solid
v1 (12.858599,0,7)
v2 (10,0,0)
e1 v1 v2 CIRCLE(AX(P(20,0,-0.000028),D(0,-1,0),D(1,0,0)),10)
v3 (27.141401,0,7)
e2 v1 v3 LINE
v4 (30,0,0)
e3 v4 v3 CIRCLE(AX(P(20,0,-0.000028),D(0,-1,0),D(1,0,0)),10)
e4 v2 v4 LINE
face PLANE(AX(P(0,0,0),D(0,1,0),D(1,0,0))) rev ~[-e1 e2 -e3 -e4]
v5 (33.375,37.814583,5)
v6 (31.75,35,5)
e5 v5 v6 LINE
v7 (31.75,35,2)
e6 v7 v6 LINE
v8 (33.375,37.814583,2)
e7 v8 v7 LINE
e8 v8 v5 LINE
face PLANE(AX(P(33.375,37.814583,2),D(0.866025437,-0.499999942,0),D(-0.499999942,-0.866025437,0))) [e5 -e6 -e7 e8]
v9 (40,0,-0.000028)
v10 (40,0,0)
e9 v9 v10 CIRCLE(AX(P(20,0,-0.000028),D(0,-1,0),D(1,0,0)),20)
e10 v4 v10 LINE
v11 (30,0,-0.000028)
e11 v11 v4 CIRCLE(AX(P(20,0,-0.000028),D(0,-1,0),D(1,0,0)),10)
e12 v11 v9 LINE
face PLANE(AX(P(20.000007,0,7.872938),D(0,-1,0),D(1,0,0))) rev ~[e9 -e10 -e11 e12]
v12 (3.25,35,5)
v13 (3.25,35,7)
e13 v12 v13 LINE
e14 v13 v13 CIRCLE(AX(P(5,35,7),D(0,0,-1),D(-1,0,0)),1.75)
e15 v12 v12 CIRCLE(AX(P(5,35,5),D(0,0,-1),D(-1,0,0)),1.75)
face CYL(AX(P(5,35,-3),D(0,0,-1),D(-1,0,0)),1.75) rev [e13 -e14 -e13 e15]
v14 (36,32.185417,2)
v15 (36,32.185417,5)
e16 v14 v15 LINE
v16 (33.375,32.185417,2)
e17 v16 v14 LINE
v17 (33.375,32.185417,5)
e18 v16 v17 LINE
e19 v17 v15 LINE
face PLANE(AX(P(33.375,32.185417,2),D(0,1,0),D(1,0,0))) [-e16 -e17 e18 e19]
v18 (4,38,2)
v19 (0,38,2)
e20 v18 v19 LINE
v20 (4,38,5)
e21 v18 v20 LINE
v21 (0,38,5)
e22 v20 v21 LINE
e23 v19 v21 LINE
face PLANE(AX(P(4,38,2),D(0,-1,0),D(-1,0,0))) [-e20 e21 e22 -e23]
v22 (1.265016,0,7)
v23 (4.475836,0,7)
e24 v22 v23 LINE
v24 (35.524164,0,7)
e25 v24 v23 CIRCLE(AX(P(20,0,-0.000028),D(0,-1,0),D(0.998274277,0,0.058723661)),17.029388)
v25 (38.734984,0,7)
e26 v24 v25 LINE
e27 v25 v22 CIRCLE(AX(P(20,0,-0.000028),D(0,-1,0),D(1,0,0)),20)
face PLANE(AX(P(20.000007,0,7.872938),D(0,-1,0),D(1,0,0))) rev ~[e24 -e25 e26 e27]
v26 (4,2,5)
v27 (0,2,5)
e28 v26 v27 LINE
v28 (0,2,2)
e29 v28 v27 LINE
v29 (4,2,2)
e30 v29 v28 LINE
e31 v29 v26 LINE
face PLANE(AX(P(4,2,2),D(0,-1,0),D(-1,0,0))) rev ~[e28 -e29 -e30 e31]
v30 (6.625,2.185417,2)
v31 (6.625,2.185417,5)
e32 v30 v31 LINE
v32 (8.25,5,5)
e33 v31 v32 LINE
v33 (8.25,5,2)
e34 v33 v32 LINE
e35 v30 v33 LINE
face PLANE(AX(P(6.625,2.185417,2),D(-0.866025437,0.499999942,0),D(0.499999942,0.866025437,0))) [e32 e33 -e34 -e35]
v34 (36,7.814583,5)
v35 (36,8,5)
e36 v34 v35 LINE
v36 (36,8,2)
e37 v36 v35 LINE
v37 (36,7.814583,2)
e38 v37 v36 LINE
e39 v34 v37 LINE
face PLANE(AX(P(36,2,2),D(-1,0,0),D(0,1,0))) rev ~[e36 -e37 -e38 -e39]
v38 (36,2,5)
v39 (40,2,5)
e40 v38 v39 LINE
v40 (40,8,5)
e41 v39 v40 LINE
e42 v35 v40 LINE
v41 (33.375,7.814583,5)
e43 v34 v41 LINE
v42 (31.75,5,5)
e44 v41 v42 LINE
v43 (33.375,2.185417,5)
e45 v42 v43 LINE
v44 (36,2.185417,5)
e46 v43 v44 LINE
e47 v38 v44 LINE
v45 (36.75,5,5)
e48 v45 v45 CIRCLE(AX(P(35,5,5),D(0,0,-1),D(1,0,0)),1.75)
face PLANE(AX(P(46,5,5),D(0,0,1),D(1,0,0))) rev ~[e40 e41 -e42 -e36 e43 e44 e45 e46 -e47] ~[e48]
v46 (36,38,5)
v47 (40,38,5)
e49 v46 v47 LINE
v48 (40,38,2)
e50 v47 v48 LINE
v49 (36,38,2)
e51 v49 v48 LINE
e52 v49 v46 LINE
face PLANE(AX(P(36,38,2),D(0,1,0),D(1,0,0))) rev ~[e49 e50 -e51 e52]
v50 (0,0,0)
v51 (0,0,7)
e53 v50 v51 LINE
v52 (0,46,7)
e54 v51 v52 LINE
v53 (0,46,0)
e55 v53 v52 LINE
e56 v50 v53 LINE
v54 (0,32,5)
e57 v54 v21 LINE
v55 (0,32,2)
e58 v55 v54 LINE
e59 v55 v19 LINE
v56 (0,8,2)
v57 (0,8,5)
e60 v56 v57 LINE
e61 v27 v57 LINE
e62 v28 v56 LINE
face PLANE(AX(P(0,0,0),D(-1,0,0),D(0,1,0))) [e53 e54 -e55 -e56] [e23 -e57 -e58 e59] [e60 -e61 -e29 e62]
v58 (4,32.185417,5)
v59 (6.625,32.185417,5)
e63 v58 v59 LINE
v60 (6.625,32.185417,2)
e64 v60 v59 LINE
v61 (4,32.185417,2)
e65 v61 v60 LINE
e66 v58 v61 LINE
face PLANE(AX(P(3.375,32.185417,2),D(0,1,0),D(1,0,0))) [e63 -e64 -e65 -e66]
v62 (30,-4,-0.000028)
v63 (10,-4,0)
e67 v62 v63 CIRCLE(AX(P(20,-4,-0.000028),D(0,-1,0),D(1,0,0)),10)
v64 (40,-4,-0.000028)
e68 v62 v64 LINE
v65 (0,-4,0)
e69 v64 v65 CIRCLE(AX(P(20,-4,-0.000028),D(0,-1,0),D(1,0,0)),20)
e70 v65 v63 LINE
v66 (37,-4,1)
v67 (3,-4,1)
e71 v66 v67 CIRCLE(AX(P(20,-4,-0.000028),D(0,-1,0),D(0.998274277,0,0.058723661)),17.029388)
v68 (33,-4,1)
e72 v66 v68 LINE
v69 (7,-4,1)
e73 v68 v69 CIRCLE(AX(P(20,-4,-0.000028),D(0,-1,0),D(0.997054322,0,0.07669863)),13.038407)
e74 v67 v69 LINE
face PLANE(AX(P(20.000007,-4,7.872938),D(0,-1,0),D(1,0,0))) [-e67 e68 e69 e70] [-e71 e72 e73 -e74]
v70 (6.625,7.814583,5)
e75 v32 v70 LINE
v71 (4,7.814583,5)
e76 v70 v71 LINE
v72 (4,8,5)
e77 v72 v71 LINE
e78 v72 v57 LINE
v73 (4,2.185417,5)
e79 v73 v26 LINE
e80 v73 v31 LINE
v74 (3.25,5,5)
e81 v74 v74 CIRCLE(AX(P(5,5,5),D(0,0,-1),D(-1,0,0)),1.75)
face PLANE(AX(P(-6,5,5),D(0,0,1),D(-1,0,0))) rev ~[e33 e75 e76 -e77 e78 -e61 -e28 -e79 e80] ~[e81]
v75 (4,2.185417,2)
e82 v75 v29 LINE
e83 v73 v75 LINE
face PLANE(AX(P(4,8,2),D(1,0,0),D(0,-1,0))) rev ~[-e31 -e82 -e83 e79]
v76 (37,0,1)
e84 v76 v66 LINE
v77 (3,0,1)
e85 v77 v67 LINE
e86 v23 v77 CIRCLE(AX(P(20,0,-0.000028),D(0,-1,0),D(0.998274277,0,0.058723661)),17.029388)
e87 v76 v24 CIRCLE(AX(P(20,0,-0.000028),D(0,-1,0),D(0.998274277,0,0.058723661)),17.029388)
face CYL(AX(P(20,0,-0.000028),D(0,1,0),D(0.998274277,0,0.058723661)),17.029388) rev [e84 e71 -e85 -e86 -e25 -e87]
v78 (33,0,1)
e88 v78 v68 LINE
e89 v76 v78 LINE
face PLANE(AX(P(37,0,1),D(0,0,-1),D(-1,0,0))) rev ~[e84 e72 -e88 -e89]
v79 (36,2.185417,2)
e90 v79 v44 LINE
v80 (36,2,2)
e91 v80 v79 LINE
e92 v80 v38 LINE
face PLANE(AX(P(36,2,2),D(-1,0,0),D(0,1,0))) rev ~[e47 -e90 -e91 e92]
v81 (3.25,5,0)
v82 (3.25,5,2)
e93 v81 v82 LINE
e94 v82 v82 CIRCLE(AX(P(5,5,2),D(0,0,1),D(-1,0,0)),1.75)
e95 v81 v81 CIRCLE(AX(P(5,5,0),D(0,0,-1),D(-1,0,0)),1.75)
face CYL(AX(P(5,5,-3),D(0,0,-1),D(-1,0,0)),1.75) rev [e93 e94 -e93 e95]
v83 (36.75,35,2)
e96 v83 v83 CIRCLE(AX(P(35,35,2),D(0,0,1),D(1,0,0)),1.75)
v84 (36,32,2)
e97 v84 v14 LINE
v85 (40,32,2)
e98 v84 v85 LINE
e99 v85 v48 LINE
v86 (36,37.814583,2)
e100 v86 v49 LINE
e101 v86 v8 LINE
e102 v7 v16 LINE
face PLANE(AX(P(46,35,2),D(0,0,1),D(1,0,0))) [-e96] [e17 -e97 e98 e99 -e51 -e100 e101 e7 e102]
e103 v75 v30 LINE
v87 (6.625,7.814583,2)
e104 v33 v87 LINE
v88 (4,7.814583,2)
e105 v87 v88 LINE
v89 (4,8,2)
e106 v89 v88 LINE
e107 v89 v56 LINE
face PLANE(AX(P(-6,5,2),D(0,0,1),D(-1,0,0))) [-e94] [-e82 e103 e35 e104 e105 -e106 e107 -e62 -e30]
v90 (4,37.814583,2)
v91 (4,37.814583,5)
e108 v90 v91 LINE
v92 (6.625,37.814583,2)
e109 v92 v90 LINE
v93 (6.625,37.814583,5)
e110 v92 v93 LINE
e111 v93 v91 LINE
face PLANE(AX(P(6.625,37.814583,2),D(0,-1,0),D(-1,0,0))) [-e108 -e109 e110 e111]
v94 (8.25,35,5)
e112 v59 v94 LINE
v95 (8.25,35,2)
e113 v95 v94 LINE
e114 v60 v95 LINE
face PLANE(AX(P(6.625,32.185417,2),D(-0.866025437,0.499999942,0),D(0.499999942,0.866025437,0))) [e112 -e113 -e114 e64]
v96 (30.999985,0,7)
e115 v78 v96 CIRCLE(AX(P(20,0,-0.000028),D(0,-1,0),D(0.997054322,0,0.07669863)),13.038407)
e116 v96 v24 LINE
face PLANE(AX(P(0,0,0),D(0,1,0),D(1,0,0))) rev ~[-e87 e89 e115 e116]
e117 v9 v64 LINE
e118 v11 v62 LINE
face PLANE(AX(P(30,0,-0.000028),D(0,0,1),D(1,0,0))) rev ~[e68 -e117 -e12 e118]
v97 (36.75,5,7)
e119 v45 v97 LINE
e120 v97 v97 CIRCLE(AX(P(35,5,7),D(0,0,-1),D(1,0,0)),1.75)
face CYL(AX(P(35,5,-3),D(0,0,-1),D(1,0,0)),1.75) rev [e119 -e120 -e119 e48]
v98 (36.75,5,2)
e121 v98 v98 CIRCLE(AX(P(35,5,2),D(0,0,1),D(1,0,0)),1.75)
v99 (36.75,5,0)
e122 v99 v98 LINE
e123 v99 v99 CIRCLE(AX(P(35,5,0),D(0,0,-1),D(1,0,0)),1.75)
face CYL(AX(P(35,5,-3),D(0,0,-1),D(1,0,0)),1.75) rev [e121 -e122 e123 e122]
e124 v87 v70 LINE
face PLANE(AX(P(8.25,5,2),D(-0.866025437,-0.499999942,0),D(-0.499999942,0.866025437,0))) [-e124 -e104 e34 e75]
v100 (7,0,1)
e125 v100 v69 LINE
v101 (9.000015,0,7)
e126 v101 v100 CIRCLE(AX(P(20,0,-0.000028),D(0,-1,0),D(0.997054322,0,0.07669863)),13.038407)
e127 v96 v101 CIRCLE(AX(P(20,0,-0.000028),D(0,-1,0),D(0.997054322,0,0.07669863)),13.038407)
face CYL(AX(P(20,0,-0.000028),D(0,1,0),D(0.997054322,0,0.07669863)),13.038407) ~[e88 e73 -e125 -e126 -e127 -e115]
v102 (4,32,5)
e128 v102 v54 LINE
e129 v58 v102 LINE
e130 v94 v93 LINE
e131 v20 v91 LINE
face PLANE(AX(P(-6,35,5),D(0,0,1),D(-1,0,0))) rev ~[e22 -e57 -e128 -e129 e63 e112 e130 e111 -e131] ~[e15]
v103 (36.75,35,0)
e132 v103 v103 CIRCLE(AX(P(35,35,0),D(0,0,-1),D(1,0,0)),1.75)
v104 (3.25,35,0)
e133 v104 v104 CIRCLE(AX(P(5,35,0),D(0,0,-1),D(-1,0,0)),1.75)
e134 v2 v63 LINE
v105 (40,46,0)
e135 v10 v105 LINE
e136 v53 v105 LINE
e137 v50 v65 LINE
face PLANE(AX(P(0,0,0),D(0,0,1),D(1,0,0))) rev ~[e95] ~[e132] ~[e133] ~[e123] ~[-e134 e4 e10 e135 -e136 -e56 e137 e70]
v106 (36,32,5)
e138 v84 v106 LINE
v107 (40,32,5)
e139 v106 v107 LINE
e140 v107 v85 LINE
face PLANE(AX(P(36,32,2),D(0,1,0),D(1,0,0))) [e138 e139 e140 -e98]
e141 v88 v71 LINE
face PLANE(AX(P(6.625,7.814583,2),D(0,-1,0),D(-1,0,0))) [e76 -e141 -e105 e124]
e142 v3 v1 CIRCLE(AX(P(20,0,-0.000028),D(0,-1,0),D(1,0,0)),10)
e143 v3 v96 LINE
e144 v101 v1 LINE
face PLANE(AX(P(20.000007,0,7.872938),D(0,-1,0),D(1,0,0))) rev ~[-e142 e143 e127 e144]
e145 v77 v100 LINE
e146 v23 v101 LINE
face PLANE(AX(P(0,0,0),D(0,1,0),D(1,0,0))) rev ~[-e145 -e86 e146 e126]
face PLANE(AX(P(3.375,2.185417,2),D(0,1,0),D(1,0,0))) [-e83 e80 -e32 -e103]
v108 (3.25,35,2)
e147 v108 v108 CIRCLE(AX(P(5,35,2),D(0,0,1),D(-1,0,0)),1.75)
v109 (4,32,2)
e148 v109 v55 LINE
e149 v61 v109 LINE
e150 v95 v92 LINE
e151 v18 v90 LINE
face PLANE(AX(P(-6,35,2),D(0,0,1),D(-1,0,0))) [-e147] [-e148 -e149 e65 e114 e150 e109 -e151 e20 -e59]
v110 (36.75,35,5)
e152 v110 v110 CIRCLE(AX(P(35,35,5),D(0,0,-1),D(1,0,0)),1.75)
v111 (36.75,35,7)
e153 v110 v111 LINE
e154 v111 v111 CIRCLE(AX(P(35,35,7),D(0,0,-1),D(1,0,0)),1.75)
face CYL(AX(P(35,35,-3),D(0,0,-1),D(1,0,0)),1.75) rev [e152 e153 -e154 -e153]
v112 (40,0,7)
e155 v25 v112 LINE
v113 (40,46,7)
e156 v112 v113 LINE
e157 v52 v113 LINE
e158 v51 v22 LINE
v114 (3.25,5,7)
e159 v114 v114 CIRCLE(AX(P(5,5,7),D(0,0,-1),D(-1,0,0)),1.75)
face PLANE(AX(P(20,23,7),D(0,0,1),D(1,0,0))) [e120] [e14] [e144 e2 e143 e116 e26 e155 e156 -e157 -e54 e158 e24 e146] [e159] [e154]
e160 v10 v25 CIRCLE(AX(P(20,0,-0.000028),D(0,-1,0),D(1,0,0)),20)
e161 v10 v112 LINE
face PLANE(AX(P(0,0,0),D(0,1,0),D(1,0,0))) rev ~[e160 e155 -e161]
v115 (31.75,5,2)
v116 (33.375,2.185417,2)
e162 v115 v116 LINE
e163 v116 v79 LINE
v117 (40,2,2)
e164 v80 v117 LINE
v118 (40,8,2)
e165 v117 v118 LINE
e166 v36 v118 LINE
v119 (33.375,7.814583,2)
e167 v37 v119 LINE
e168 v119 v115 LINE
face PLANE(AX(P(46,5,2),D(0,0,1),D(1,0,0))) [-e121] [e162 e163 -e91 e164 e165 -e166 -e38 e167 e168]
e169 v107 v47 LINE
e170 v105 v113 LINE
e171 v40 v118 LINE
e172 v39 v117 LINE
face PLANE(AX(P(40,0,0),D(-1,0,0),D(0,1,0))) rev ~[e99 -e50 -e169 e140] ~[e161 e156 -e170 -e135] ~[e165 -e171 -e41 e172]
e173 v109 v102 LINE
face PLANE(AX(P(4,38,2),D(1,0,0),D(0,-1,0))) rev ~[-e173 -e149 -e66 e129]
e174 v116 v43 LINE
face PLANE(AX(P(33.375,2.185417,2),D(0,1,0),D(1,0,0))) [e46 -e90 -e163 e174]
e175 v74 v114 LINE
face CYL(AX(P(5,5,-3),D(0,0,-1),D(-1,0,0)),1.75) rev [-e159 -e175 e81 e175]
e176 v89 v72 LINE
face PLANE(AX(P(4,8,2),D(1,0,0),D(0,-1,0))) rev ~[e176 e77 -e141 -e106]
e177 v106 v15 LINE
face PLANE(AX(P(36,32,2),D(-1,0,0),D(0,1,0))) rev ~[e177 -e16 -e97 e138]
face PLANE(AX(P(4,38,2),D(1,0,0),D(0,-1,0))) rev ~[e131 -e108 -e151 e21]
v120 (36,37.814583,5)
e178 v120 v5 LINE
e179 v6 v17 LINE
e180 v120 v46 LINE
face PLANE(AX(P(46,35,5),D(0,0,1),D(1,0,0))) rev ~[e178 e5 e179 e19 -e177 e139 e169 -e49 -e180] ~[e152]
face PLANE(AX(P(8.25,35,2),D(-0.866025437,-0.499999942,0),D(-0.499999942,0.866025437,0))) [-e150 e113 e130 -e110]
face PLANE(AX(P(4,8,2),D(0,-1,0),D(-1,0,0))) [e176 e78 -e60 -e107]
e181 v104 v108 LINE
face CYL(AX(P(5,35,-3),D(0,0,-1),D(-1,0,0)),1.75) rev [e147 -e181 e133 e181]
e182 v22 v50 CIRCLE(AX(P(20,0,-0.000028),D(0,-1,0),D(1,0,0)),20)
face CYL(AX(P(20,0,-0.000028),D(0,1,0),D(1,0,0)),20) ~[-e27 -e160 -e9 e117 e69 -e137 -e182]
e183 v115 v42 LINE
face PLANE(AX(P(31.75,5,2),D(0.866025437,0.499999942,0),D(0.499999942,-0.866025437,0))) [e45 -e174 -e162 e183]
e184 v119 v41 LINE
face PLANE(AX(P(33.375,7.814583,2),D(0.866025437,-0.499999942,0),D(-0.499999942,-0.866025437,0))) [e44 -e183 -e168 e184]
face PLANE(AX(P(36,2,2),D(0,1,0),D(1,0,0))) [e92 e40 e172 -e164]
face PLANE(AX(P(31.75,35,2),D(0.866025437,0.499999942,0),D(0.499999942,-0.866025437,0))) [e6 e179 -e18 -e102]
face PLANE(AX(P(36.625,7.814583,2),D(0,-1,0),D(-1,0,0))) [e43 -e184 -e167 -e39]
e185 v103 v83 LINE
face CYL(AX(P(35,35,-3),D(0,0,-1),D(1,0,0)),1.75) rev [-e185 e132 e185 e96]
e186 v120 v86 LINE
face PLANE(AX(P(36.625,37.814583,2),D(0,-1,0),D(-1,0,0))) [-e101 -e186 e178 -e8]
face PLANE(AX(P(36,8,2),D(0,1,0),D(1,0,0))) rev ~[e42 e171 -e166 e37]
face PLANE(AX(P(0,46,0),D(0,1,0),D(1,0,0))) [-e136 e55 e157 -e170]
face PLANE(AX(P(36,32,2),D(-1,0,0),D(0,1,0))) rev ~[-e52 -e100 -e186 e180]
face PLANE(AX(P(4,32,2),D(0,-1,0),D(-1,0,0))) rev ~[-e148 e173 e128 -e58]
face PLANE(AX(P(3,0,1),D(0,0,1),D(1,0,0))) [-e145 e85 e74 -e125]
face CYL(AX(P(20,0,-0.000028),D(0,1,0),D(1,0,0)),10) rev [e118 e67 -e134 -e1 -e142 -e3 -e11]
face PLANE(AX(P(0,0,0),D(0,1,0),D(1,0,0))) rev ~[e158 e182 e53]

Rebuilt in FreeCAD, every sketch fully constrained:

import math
import FreeCAD as App
import Part
import Sketcher
Q = App.Units.Quantity

doc = App.newDocument("Part")
body = doc.addObject("PartDesign::Body", "Body")

# Sketch on XY plane
sketch1 = body.newObject("Sketcher::SketchObject", "Sketch")
sketch1.AttachmentSupport = (doc.getObject("XY_Plane"), [""])
sketch1.MapMode = "FlatFace"
sketch1.AttachmentOffset = App.Placement(App.Vector(0, 0, -5), App.Rotation())
sketch1.addGeometry(Part.Circle(App.Vector(0, 0, 0), App.Vector(0, 0, 1), 1.8), False)
sketch1.addConstraint(Sketcher.Constraint("Coincident", 0, 3, -1, 1))
sketch1.addConstraint(Sketcher.Constraint("Diameter", 0, 3.5))
pad1 = body.newObject("PartDesign::Pad", "Pad")
pad1.Profile = sketch1
pad1.Length = 30
body2 = doc.addObject("PartDesign::Body", "Body001")

# Sketch on XY plane
sketch2 = body2.newObject("Sketcher::SketchObject", "Sketch001")
sketch2.AttachmentSupport = (doc.getObject("XY_Plane001"), [""])
sketch2.MapMode = "FlatFace"
sketch2.addGeometry(Part.LineSegment(App.Vector(1, 3, 0), App.Vector(1, -3, 0)), False)
sketch2.addGeometry(Part.LineSegment(App.Vector(1, -3, 0), App.Vector(21, -3, 0)), False)
sketch2.addGeometry(Part.LineSegment(App.Vector(21, -3, 0), App.Vector(21, 3, 0)), False)
sketch2.addGeometry(Part.LineSegment(App.Vector(21, 3, 0), App.Vector(1, 3, 0)), False)
sketch2.addConstraint(Sketcher.Constraint("Coincident", 0, 2, 1, 1))
sketch2.addConstraint(Sketcher.Constraint("Coincident", 1, 2, 2, 1))
sketch2.addConstraint(Sketcher.Constraint("Coincident", 2, 2, 3, 1))
sketch2.addConstraint(Sketcher.Constraint("Coincident", 3, 2, 0, 1))
sketch2.addConstraint(Sketcher.Constraint("Vertical", 0))
sketch2.addConstraint(Sketcher.Constraint("Horizontal", 1))
sketch2.addConstraint(Sketcher.Constraint("Vertical", 2))
sketch2.addConstraint(Sketcher.Constraint("Horizontal", 3))
sketch2.addConstraint(Sketcher.Constraint("DistanceX", 1, 1, 1, 2, 20.0))
sketch2.addConstraint(Sketcher.Constraint("DistanceY", 0, 2, 0, 1, 6.0))
sketch2.addConstraint(Sketcher.Constraint("DistanceX", -1, 1, 0, 2, 1.0))
sketch2.addConstraint(Sketcher.Constraint("DistanceY", 0, 2, -1, 1, 3.0))
pad2 = body2.newObject("PartDesign::Pad", "Pad001")
pad2.Profile = sketch2
pad2.Length = 3
body3 = doc.addObject("PartDesign::Body", "Body002")

# Sketch on XY plane
sketch3 = body3.newObject("Sketcher::SketchObject", "Sketch002")
sketch3.AttachmentSupport = (doc.getObject("XY_Plane002"), [""])
sketch3.MapMode = "FlatFace"
sketch3.addGeometry(Part.LineSegment(App.Vector(3.2, 0, 0), App.Vector(1.6, 2.8, 0)), False)
sketch3.addGeometry(Part.LineSegment(App.Vector(1.6, 2.8, 0), App.Vector(-1.6, 2.8, 0)), False)
sketch3.addGeometry(Part.LineSegment(App.Vector(-1.6, 2.8, 0), App.Vector(-3.2, 0, 0)), False)
sketch3.addGeometry(Part.LineSegment(App.Vector(-3.2, 0, 0), App.Vector(-1.6, -2.8, 0)), False)
sketch3.addGeometry(Part.LineSegment(App.Vector(-1.6, -2.8, 0), App.Vector(1.6, -2.8, 0)), False)
sketch3.addGeometry(Part.LineSegment(App.Vector(1.6, -2.8, 0), App.Vector(3.2, 0, 0)), False)
sketch3.addConstraint(Sketcher.Constraint("Coincident", 0, 2, 1, 1))
sketch3.addConstraint(Sketcher.Constraint("Coincident", 1, 2, 2, 1))
sketch3.addConstraint(Sketcher.Constraint("Coincident", 2, 2, 3, 1))
sketch3.addConstraint(Sketcher.Constraint("Coincident", 3, 2, 4, 1))
sketch3.addConstraint(Sketcher.Constraint("Coincident", 4, 2, 5, 1))
sketch3.addConstraint(Sketcher.Constraint("Coincident", 5, 2, 0, 1))
sketch3.addConstraint(Sketcher.Constraint("Horizontal", 1))
sketch3.addConstraint(Sketcher.Constraint("Horizontal", 4))
sketch3.addConstraint(Sketcher.Constraint("Symmetric", 0, 2, 3, 2, -1, 1))
sketch3.addConstraint(Sketcher.Constraint("Symmetric", 2, 2, 5, 2, -1, 1))
sketch3.addConstraint(Sketcher.Constraint("PointOnObject", 2, 2, -1))
sketch3.addConstraint(Sketcher.Constraint("Parallel", 2, 5))
sketch3.addConstraint(Sketcher.Constraint("Vertical", 1, 2, 3, 2))
sketch3.addConstraint(Sketcher.Constraint("Angle", 0, Q("119.999996 deg")))
sketch3.addConstraint(Sketcher.Constraint("DistanceX", 1, 2, 1, 1, 3.25))
sketch3.addConstraint(Sketcher.Constraint("DistanceX", 2, 2, 5, 2, 6.5))
pad3 = body3.newObject("PartDesign::Pad", "Pad002")
pad3.Profile = sketch3
pad3.Length = 3
doc.recompute()

boolean = body3.newObject("PartDesign::Boolean", "Boolean")
boolean.Type = "Fuse"
boolean.addObjects([body])
doc.recompute()

boolean2 = body3.newObject("PartDesign::Boolean", "Boolean001")
boolean2.Type = "Fuse"
boolean2.addObjects([body2])
body4 = doc.addObject("PartDesign::Body", "Body003")
doc.recompute()

body3.Placement = App.Placement(App.Vector(5, 35, 2), App.Rotation(App.Vector(0, 0, 1), 180))
boolean3 = body4.newObject("PartDesign::Boolean", "Boolean002")
boolean3.Type = "Fuse"
boolean3.addObjects([body3])
body5 = doc.addObject("PartDesign::Body", "Body004")

# Sketch on XY plane
sketch4 = body5.newObject("Sketcher::SketchObject", "Sketch003")
sketch4.AttachmentSupport = (doc.getObject("XY_Plane004"), [""])
sketch4.MapMode = "FlatFace"
sketch4.AttachmentOffset = App.Placement(App.Vector(0, 0, -5), App.Rotation())
sketch4.addGeometry(Part.Circle(App.Vector(0, 0, 0), App.Vector(0, 0, 1), 1.8), False)
sketch4.addConstraint(Sketcher.Constraint("Coincident", 0, 3, -1, 1))
sketch4.addConstraint(Sketcher.Constraint("Diameter", 0, 3.5))
pad4 = body5.newObject("PartDesign::Pad", "Pad003")
pad4.Profile = sketch4
pad4.Length = 30
body6 = doc.addObject("PartDesign::Body", "Body005")

# Sketch on XY plane
sketch5 = body6.newObject("Sketcher::SketchObject", "Sketch004")
sketch5.AttachmentSupport = (doc.getObject("XY_Plane005"), [""])
sketch5.MapMode = "FlatFace"
sketch5.addGeometry(Part.LineSegment(App.Vector(1, 3, 0), App.Vector(1, -3, 0)), False)
sketch5.addGeometry(Part.LineSegment(App.Vector(1, -3, 0), App.Vector(21, -3, 0)), False)
sketch5.addGeometry(Part.LineSegment(App.Vector(21, -3, 0), App.Vector(21, 3, 0)), False)
sketch5.addGeometry(Part.LineSegment(App.Vector(21, 3, 0), App.Vector(1, 3, 0)), False)
sketch5.addConstraint(Sketcher.Constraint("Coincident", 0, 2, 1, 1))
sketch5.addConstraint(Sketcher.Constraint("Coincident", 1, 2, 2, 1))
sketch5.addConstraint(Sketcher.Constraint("Coincident", 2, 2, 3, 1))
sketch5.addConstraint(Sketcher.Constraint("Coincident", 3, 2, 0, 1))
sketch5.addConstraint(Sketcher.Constraint("Vertical", 0))
sketch5.addConstraint(Sketcher.Constraint("Horizontal", 1))
sketch5.addConstraint(Sketcher.Constraint("Vertical", 2))
sketch5.addConstraint(Sketcher.Constraint("Horizontal", 3))
sketch5.addConstraint(Sketcher.Constraint("DistanceX", 1, 1, 1, 2, 20.0))
sketch5.addConstraint(Sketcher.Constraint("DistanceY", 0, 2, 0, 1, 6.0))
sketch5.addConstraint(Sketcher.Constraint("DistanceX", -1, 1, 0, 2, 1.0))
sketch5.addConstraint(Sketcher.Constraint("DistanceY", 0, 2, -1, 1, 3.0))
pad5 = body6.newObject("PartDesign::Pad", "Pad004")
pad5.Profile = sketch5
pad5.Length = 3
body7 = doc.addObject("PartDesign::Body", "Body006")

# Sketch on XY plane
sketch6 = body7.newObject("Sketcher::SketchObject", "Sketch005")
sketch6.AttachmentSupport = (doc.getObject("XY_Plane006"), [""])
sketch6.MapMode = "FlatFace"
sketch6.addGeometry(Part.LineSegment(App.Vector(3.2, 0, 0), App.Vector(1.6, 2.8, 0)), False)
sketch6.addGeometry(Part.LineSegment(App.Vector(1.6, 2.8, 0), App.Vector(-1.6, 2.8, 0)), False)
sketch6.addGeometry(Part.LineSegment(App.Vector(-1.6, 2.8, 0), App.Vector(-3.2, 0, 0)), False)
sketch6.addGeometry(Part.LineSegment(App.Vector(-3.2, 0, 0), App.Vector(-1.6, -2.8, 0)), False)
sketch6.addGeometry(Part.LineSegment(App.Vector(-1.6, -2.8, 0), App.Vector(1.6, -2.8, 0)), False)
sketch6.addGeometry(Part.LineSegment(App.Vector(1.6, -2.8, 0), App.Vector(3.2, 0, 0)), False)
sketch6.addConstraint(Sketcher.Constraint("Coincident", 0, 2, 1, 1))
sketch6.addConstraint(Sketcher.Constraint("Coincident", 1, 2, 2, 1))
sketch6.addConstraint(Sketcher.Constraint("Coincident", 2, 2, 3, 1))
sketch6.addConstraint(Sketcher.Constraint("Coincident", 3, 2, 4, 1))
sketch6.addConstraint(Sketcher.Constraint("Coincident", 4, 2, 5, 1))
sketch6.addConstraint(Sketcher.Constraint("Coincident", 5, 2, 0, 1))
sketch6.addConstraint(Sketcher.Constraint("Horizontal", 1))
sketch6.addConstraint(Sketcher.Constraint("Horizontal", 4))
sketch6.addConstraint(Sketcher.Constraint("Symmetric", 0, 2, 3, 2, -1, 1))
sketch6.addConstraint(Sketcher.Constraint("Symmetric", 2, 2, 5, 2, -1, 1))
sketch6.addConstraint(Sketcher.Constraint("PointOnObject", 2, 2, -1))
sketch6.addConstraint(Sketcher.Constraint("Parallel", 2, 5))
sketch6.addConstraint(Sketcher.Constraint("Vertical", 1, 2, 3, 2))
sketch6.addConstraint(Sketcher.Constraint("Angle", 0, Q("119.999996 deg")))
sketch6.addConstraint(Sketcher.Constraint("DistanceX", 1, 2, 1, 1, 3.25))
sketch6.addConstraint(Sketcher.Constraint("DistanceX", 2, 2, 5, 2, 6.5))
pad6 = body7.newObject("PartDesign::Pad", "Pad005")
pad6.Profile = sketch6
pad6.Length = 3
doc.recompute()

boolean4 = body7.newObject("PartDesign::Boolean", "Boolean003")
boolean4.Type = "Fuse"
boolean4.addObjects([body5])
doc.recompute()

boolean5 = body7.newObject("PartDesign::Boolean", "Boolean004")
boolean5.Type = "Fuse"
boolean5.addObjects([body6])
body8 = doc.addObject("PartDesign::Body", "Body007")
doc.recompute()

body7.Placement = App.Placement(App.Vector(5, 5, 2), App.Rotation(App.Vector(0, 0, 1), 180))
boolean6 = body8.newObject("PartDesign::Boolean", "Boolean005")
boolean6.Type = "Fuse"
boolean6.addObjects([body7])
body9 = doc.addObject("PartDesign::Body", "Body008")

# Sketch on XY plane
sketch7 = body9.newObject("Sketcher::SketchObject", "Sketch006")
sketch7.AttachmentSupport = (doc.getObject("XY_Plane008"), [""])
sketch7.MapMode = "FlatFace"
sketch7.AttachmentOffset = App.Placement(App.Vector(0, 0, -5), App.Rotation())
sketch7.addGeometry(Part.Circle(App.Vector(0, 0, 0), App.Vector(0, 0, 1), 1.8), False)
sketch7.addConstraint(Sketcher.Constraint("Coincident", 0, 3, -1, 1))
sketch7.addConstraint(Sketcher.Constraint("Diameter", 0, 3.5))
pad7 = body9.newObject("PartDesign::Pad", "Pad006")
pad7.Profile = sketch7
pad7.Length = 30
body10 = doc.addObject("PartDesign::Body", "Body009")

# Sketch on XY plane
sketch8 = body10.newObject("Sketcher::SketchObject", "Sketch007")
sketch8.AttachmentSupport = (doc.getObject("XY_Plane009"), [""])
sketch8.MapMode = "FlatFace"
sketch8.addGeometry(Part.LineSegment(App.Vector(1, 3, 0), App.Vector(1, -3, 0)), False)
sketch8.addGeometry(Part.LineSegment(App.Vector(1, -3, 0), App.Vector(21, -3, 0)), False)
sketch8.addGeometry(Part.LineSegment(App.Vector(21, -3, 0), App.Vector(21, 3, 0)), False)
sketch8.addGeometry(Part.LineSegment(App.Vector(21, 3, 0), App.Vector(1, 3, 0)), False)
sketch8.addConstraint(Sketcher.Constraint("Coincident", 0, 2, 1, 1))
sketch8.addConstraint(Sketcher.Constraint("Coincident", 1, 2, 2, 1))
sketch8.addConstraint(Sketcher.Constraint("Coincident", 2, 2, 3, 1))
sketch8.addConstraint(Sketcher.Constraint("Coincident", 3, 2, 0, 1))
sketch8.addConstraint(Sketcher.Constraint("Vertical", 0))
sketch8.addConstraint(Sketcher.Constraint("Horizontal", 1))
sketch8.addConstraint(Sketcher.Constraint("Vertical", 2))
sketch8.addConstraint(Sketcher.Constraint("Horizontal", 3))
sketch8.addConstraint(Sketcher.Constraint("DistanceX", 1, 1, 1, 2, 20.0))
sketch8.addConstraint(Sketcher.Constraint("DistanceY", 0, 2, 0, 1, 6.0))
sketch8.addConstraint(Sketcher.Constraint("DistanceX", -1, 1, 0, 2, 1.0))
sketch8.addConstraint(Sketcher.Constraint("DistanceY", 0, 2, -1, 1, 3.0))
pad8 = body10.newObject("PartDesign::Pad", "Pad007")
pad8.Profile = sketch8
pad8.Length = 3
body11 = doc.addObject("PartDesign::Body", "Body010")

# Sketch on XY plane
sketch9 = body11.newObject("Sketcher::SketchObject", "Sketch008")
sketch9.AttachmentSupport = (doc.getObject("XY_Plane010"), [""])
sketch9.MapMode = "FlatFace"
sketch9.addGeometry(Part.LineSegment(App.Vector(3.2, 0, 0), App.Vector(1.6, 2.8, 0)), False)
sketch9.addGeometry(Part.LineSegment(App.Vector(1.6, 2.8, 0), App.Vector(-1.6, 2.8, 0)), False)
sketch9.addGeometry(Part.LineSegment(App.Vector(-1.6, 2.8, 0), App.Vector(-3.2, 0, 0)), False)
sketch9.addGeometry(Part.LineSegment(App.Vector(-3.2, 0, 0), App.Vector(-1.6, -2.8, 0)), False)
sketch9.addGeometry(Part.LineSegment(App.Vector(-1.6, -2.8, 0), App.Vector(1.6, -2.8, 0)), False)
sketch9.addGeometry(Part.LineSegment(App.Vector(1.6, -2.8, 0), App.Vector(3.2, 0, 0)), False)
sketch9.addConstraint(Sketcher.Constraint("Coincident", 0, 2, 1, 1))
sketch9.addConstraint(Sketcher.Constraint("Coincident", 1, 2, 2, 1))
sketch9.addConstraint(Sketcher.Constraint("Coincident", 2, 2, 3, 1))
sketch9.addConstraint(Sketcher.Constraint("Coincident", 3, 2, 4, 1))
sketch9.addConstraint(Sketcher.Constraint("Coincident", 4, 2, 5, 1))
sketch9.addConstraint(Sketcher.Constraint("Coincident", 5, 2, 0, 1))
sketch9.addConstraint(Sketcher.Constraint("Horizontal", 1))
sketch9.addConstraint(Sketcher.Constraint("Horizontal", 4))
sketch9.addConstraint(Sketcher.Constraint("Symmetric", 0, 2, 3, 2, -1, 1))
sketch9.addConstraint(Sketcher.Constraint("Symmetric", 2, 2, 5, 2, -1, 1))
sketch9.addConstraint(Sketcher.Constraint("PointOnObject", 2, 2, -1))
sketch9.addConstraint(Sketcher.Constraint("Parallel", 2, 5))
sketch9.addConstraint(Sketcher.Constraint("Vertical", 1, 2, 3, 2))
sketch9.addConstraint(Sketcher.Constraint("Angle", 0, Q("119.999996 deg")))
sketch9.addConstraint(Sketcher.Constraint("DistanceX", 1, 2, 1, 1, 3.25))
sketch9.addConstraint(Sketcher.Constraint("DistanceX", 2, 2, 5, 2, 6.5))
pad9 = body11.newObject("PartDesign::Pad", "Pad008")
pad9.Profile = sketch9
pad9.Length = 3
doc.recompute()

boolean7 = body11.newObject("PartDesign::Boolean", "Boolean006")
boolean7.Type = "Fuse"
boolean7.addObjects([body9])
doc.recompute()

boolean8 = body11.newObject("PartDesign::Boolean", "Boolean007")
boolean8.Type = "Fuse"
boolean8.addObjects([body10])
body12 = doc.addObject("PartDesign::Body", "Body011")
doc.recompute()

body11.Placement = App.Placement(App.Vector(35, 35, 2), App.Rotation(App.Vector(0, 0, 1), 0))
boolean9 = body12.newObject("PartDesign::Boolean", "Boolean008")
boolean9.Type = "Fuse"
boolean9.addObjects([body11])
body13 = doc.addObject("PartDesign::Body", "Body012")

# Sketch on XY plane
sketch10 = body13.newObject("Sketcher::SketchObject", "Sketch009")
sketch10.AttachmentSupport = (doc.getObject("XY_Plane012"), [""])
sketch10.MapMode = "FlatFace"
sketch10.AttachmentOffset = App.Placement(App.Vector(0, 0, -5), App.Rotation())
sketch10.addGeometry(Part.Circle(App.Vector(0, 0, 0), App.Vector(0, 0, 1), 1.8), False)
sketch10.addConstraint(Sketcher.Constraint("Coincident", 0, 3, -1, 1))
sketch10.addConstraint(Sketcher.Constraint("Diameter", 0, 3.5))
pad10 = body13.newObject("PartDesign::Pad", "Pad009")
pad10.Profile = sketch10
pad10.Length = 30
body14 = doc.addObject("PartDesign::Body", "Body013")

# Sketch on XY plane
sketch11 = body14.newObject("Sketcher::SketchObject", "Sketch010")
sketch11.AttachmentSupport = (doc.getObject("XY_Plane013"), [""])
sketch11.MapMode = "FlatFace"
sketch11.addGeometry(Part.LineSegment(App.Vector(1, 3, 0), App.Vector(1, -3, 0)), False)
sketch11.addGeometry(Part.LineSegment(App.Vector(1, -3, 0), App.Vector(21, -3, 0)), False)
sketch11.addGeometry(Part.LineSegment(App.Vector(21, -3, 0), App.Vector(21, 3, 0)), False)
sketch11.addGeometry(Part.LineSegment(App.Vector(21, 3, 0), App.Vector(1, 3, 0)), False)
sketch11.addConstraint(Sketcher.Constraint("Coincident", 0, 2, 1, 1))
sketch11.addConstraint(Sketcher.Constraint("Coincident", 1, 2, 2, 1))
sketch11.addConstraint(Sketcher.Constraint("Coincident", 2, 2, 3, 1))
sketch11.addConstraint(Sketcher.Constraint("Coincident", 3, 2, 0, 1))
sketch11.addConstraint(Sketcher.Constraint("Vertical", 0))
sketch11.addConstraint(Sketcher.Constraint("Horizontal", 1))
sketch11.addConstraint(Sketcher.Constraint("Vertical", 2))
sketch11.addConstraint(Sketcher.Constraint("Horizontal", 3))
sketch11.addConstraint(Sketcher.Constraint("DistanceX", 1, 1, 1, 2, 20.0))
sketch11.addConstraint(Sketcher.Constraint("DistanceY", 0, 2, 0, 1, 6.0))
sketch11.addConstraint(Sketcher.Constraint("DistanceX", -1, 1, 0, 2, 1.0))
sketch11.addConstraint(Sketcher.Constraint("DistanceY", 0, 2, -1, 1, 3.0))
pad11 = body14.newObject("PartDesign::Pad", "Pad010")
pad11.Profile = sketch11
pad11.Length = 3
body15 = doc.addObject("PartDesign::Body", "Body014")

# Sketch on XY plane
sketch12 = body15.newObject("Sketcher::SketchObject", "Sketch011")
sketch12.AttachmentSupport = (doc.getObject("XY_Plane014"), [""])
sketch12.MapMode = "FlatFace"
sketch12.addGeometry(Part.LineSegment(App.Vector(3.2, 0, 0), App.Vector(1.6, 2.8, 0)), False)
sketch12.addGeometry(Part.LineSegment(App.Vector(1.6, 2.8, 0), App.Vector(-1.6, 2.8, 0)), False)
sketch12.addGeometry(Part.LineSegment(App.Vector(-1.6, 2.8, 0), App.Vector(-3.2, 0, 0)), False)
sketch12.addGeometry(Part.LineSegment(App.Vector(-3.2, 0, 0), App.Vector(-1.6, -2.8, 0)), False)
sketch12.addGeometry(Part.LineSegment(App.Vector(-1.6, -2.8, 0), App.Vector(1.6, -2.8, 0)), False)
sketch12.addGeometry(Part.LineSegment(App.Vector(1.6, -2.8, 0), App.Vector(3.2, 0, 0)), False)
sketch12.addConstraint(Sketcher.Constraint("Coincident", 0, 2, 1, 1))
sketch12.addConstraint(Sketcher.Constraint("Coincident", 1, 2, 2, 1))
sketch12.addConstraint(Sketcher.Constraint("Coincident", 2, 2, 3, 1))
sketch12.addConstraint(Sketcher.Constraint("Coincident", 3, 2, 4, 1))
sketch12.addConstraint(Sketcher.Constraint("Coincident", 4, 2, 5, 1))
sketch12.addConstraint(Sketcher.Constraint("Coincident", 5, 2, 0, 1))
sketch12.addConstraint(Sketcher.Constraint("Horizontal", 1))
sketch12.addConstraint(Sketcher.Constraint("Horizontal", 4))
sketch12.addConstraint(Sketcher.Constraint("Symmetric", 0, 2, 3, 2, -1, 1))
sketch12.addConstraint(Sketcher.Constraint("Symmetric", 2, 2, 5, 2, -1, 1))
sketch12.addConstraint(Sketcher.Constraint("PointOnObject", 2, 2, -1))
sketch12.addConstraint(Sketcher.Constraint("Parallel", 2, 5))
sketch12.addConstraint(Sketcher.Constraint("Vertical", 1, 2, 3, 2))
sketch12.addConstraint(Sketcher.Constraint("Angle", 0, Q("119.999996 deg")))
sketch12.addConstraint(Sketcher.Constraint("DistanceX", 1, 2, 1, 1, 3.25))
sketch12.addConstraint(Sketcher.Constraint("DistanceX", 2, 2, 5, 2, 6.5))
pad12 = body15.newObject("PartDesign::Pad", "Pad011")
pad12.Profile = sketch12
pad12.Length = 3
doc.recompute()

boolean10 = body15.newObject("PartDesign::Boolean", "Boolean009")
boolean10.Type = "Fuse"
boolean10.addObjects([body13])
doc.recompute()

boolean11 = body15.newObject("PartDesign::Boolean", "Boolean010")
boolean11.Type = "Fuse"
boolean11.addObjects([body14])
body16 = doc.addObject("PartDesign::Body", "Body015")
doc.recompute()

body15.Placement = App.Placement(App.Vector(35, 5, 2), App.Rotation(App.Vector(0, 0, 1), 0))
boolean12 = body16.newObject("PartDesign::Boolean", "Boolean011")
boolean12.Type = "Fuse"
boolean12.addObjects([body15])
body17 = doc.addObject("PartDesign::Body", "Body016")

# Sketch on XY plane
sketch13 = body17.newObject("Sketcher::SketchObject", "Sketch012")
sketch13.AttachmentSupport = (doc.getObject("XY_Plane016"), [""])
sketch13.MapMode = "FlatFace"
sketch13.addGeometry(Part.LineSegment(App.Vector(0, 46, 0), App.Vector(0, 0, 0)), False)
sketch13.addGeometry(Part.LineSegment(App.Vector(0, 0, 0), App.Vector(40, 0, 0)), False)
sketch13.addGeometry(Part.LineSegment(App.Vector(40, 0, 0), App.Vector(40, 46, 0)), False)
sketch13.addGeometry(Part.LineSegment(App.Vector(40, 46, 0), App.Vector(0, 46, 0)), False)
sketch13.addConstraint(Sketcher.Constraint("Coincident", 0, 2, 1, 1))
sketch13.addConstraint(Sketcher.Constraint("Coincident", 1, 2, 2, 1))
sketch13.addConstraint(Sketcher.Constraint("Coincident", 2, 2, 3, 1))
sketch13.addConstraint(Sketcher.Constraint("Coincident", 3, 2, 0, 1))
sketch13.addConstraint(Sketcher.Constraint("Vertical", 0))
sketch13.addConstraint(Sketcher.Constraint("Horizontal", 1))
sketch13.addConstraint(Sketcher.Constraint("Vertical", 2))
sketch13.addConstraint(Sketcher.Constraint("Horizontal", 3))
sketch13.addConstraint(Sketcher.Constraint("Coincident", 0, 2, -1, 1))
sketch13.addConstraint(Sketcher.Constraint("DistanceX", 1, 1, 1, 2, 40.0))
sketch13.addConstraint(Sketcher.Constraint("DistanceY", 0, 2, 0, 1, 46.0))
pad13 = body17.newObject("PartDesign::Pad", "Pad012")
pad13.Profile = sketch13
pad13.Length = 7
doc.recompute()

boolean13 = body17.newObject("PartDesign::Boolean", "Boolean012")
boolean13.Type = "Cut"
boolean13.addObjects([body16])
doc.recompute()

boolean14 = body17.newObject("PartDesign::Boolean", "Boolean013")
boolean14.Type = "Cut"
boolean14.addObjects([body12])
doc.recompute()

boolean15 = body17.newObject("PartDesign::Boolean", "Boolean014")
boolean15.Type = "Cut"
boolean15.addObjects([body8])
doc.recompute()

boolean16 = body17.newObject("PartDesign::Boolean", "Boolean015")
boolean16.Type = "Cut"
boolean16.addObjects([body4])

# Sketch on XZ plane
sketch14 = body17.newObject("Sketcher::SketchObject", "Sketch013")
sketch14.AttachmentSupport = (doc.getObject("XZ_Plane016"), [""])
sketch14.MapMode = "FlatFace"
sketch14.addGeometry(Part.LineSegment(App.Vector(0, 0, 0), App.Vector(10, 0, 0)), False)
sketch14.addGeometry(Part.ArcOfCircle(Part.Circle(App.Vector(20, 0, 0), App.Vector(0, 0, 1), 10), math.radians(0), math.radians(180)), False)
sketch14.addGeometry(Part.LineSegment(App.Vector(30, 0, 0), App.Vector(40, 0, 0)), False)
sketch14.addGeometry(Part.ArcOfCircle(Part.Circle(App.Vector(20, 0, 0), App.Vector(0, 0, 1), 20), math.radians(0), math.radians(180)), False)
sketch14.addGeometry(Part.ArcOfCircle(Part.Circle(App.Vector(20, 0, 0), App.Vector(0, 0, 1), 17), math.radians(3), math.radians(177)), False)
sketch14.addGeometry(Part.LineSegment(App.Vector(37, 1, 0), App.Vector(33, 1, 0)), False)
sketch14.addGeometry(Part.ArcOfCircle(Part.Circle(App.Vector(20, 0, 0), App.Vector(0, 0, 1), 13), math.radians(4), math.radians(176)), False)
sketch14.addGeometry(Part.LineSegment(App.Vector(7, 1, 0), App.Vector(3, 1, 0)), False)
sketch14.addConstraint(Sketcher.Constraint("Coincident", 0, 2, 1, 2))
sketch14.addConstraint(Sketcher.Constraint("Coincident", 1, 1, 2, 1))
sketch14.addConstraint(Sketcher.Constraint("Coincident", 2, 2, 3, 1))
sketch14.addConstraint(Sketcher.Constraint("Coincident", 3, 2, 0, 1))
sketch14.addConstraint(Sketcher.Constraint("Coincident", 4, 1, 5, 1))
sketch14.addConstraint(Sketcher.Constraint("Coincident", 5, 2, 6, 1))
sketch14.addConstraint(Sketcher.Constraint("Coincident", 6, 2, 7, 1))
sketch14.addConstraint(Sketcher.Constraint("Coincident", 7, 2, 4, 2))
sketch14.addConstraint(Sketcher.Constraint("Horizontal", 0))
sketch14.addConstraint(Sketcher.Constraint("Horizontal", 2))
sketch14.addConstraint(Sketcher.Constraint("Horizontal", 5))
sketch14.addConstraint(Sketcher.Constraint("Horizontal", 7))
sketch14.addConstraint(Sketcher.Constraint("Coincident", 3, 2, -1, 1))
sketch14.addConstraint(Sketcher.Constraint("Coincident", 3, 3, 1, 3))
sketch14.addConstraint(Sketcher.Constraint("Coincident", 4, 3, 1, 3))
sketch14.addConstraint(Sketcher.Constraint("Coincident", 6, 3, 1, 3))
sketch14.addConstraint(Sketcher.Constraint("Horizontal", 6, 3, 1, 1))
sketch14.addConstraint(Sketcher.Constraint("Horizontal", 5, 2, 6, 2))
sketch14.addConstraint(Sketcher.Constraint("Radius", 1, 10.0))
sketch14.addConstraint(Sketcher.Constraint("Radius", 3, 20.0))
sketch14.addConstraint(Sketcher.Constraint("DistanceX", 5, 2, 5, 1, 4.0))
sketch14.addConstraint(Sketcher.Constraint("DistanceX", -1, 1, 4, 1, 37.0))
sketch14.addConstraint(Sketcher.Constraint("DistanceY", -1, 1, 4, 1, 1.0))
sketch14.addConstraint(Sketcher.Constraint("Radius", 4, 17.029388))
pad14 = body17.newObject("PartDesign::Pad", "Pad013")
pad14.Profile = sketch14
pad14.Length = 4

doc.recompute()
